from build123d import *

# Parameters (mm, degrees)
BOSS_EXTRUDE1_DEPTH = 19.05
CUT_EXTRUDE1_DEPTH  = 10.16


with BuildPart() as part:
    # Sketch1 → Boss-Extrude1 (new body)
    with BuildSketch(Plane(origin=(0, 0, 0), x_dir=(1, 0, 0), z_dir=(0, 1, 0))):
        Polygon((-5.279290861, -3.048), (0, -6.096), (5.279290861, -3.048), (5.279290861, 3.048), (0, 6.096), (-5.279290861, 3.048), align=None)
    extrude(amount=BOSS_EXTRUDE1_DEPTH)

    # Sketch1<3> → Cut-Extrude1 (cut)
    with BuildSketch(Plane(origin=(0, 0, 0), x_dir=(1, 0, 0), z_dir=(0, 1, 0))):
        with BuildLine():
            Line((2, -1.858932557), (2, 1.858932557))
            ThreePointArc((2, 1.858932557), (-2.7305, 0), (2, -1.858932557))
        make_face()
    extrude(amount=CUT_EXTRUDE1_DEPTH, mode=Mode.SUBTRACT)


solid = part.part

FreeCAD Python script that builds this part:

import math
import FreeCAD as App
import Part
import Sketcher
from FreeCAD import Vector
Q = App.Units.Quantity


def add_polygon(sketch, points):
    """Adds a closed chain of lines whose ends are joined by coincident constraints."""
    first, n = sketch.GeometryCount, len(points)
    for a, b in zip(points, points[1:] + points[:1]):
        sketch.addGeometry(Part.LineSegment(App.Vector(*a, 0), App.Vector(*b, 0)), False)
    for i in range(n):
        sketch.addConstraint(Sketcher.Constraint("Coincident", first + i, 2, first + (i + 1) % n, 1))

doc = App.newDocument("Part")
body = doc.addObject("PartDesign::Body", "Body")

# Sketch on XZ plane
sketch1 = doc.addObject("Sketcher::SketchObject", "Sketch")
body.addObject(sketch1)
sketch1.AttachmentSupport = (doc.XZ_Plane, [""])
sketch1.MapMode = "FlatFace"
add_polygon(sketch1, [(-5.279291, 3.048), (0, 6.096), (5.279291, 3.048), (5.279291, -3.048), (0, -6.096), (-5.279291, -3.048)])  # lines 0-5
sketch1.addConstraint(Sketcher.Constraint("Vertical", 2))
sketch1.addConstraint(Sketcher.Constraint("Vertical", 5))
sketch1.addConstraint(Sketcher.Constraint("Symmetric", 0, 2, 3, 2, -1, 1))
sketch1.addConstraint(Sketcher.Constraint("Symmetric", 1, 2, 4, 2, -1, 1))
sketch1.addConstraint(Sketcher.Constraint("PointOnObject", 0, 2, -2))
sketch1.addConstraint(Sketcher.Constraint("Parallel", 0, 3))
sketch1.addConstraint(Sketcher.Constraint("Horizontal", 2, 2, 4, 2))
sketch1.addConstraint(Sketcher.Constraint("Angle", 0, Q("30 deg")))
sketch1.addConstraint(Sketcher.Constraint("DistanceY", 2, 2, 2, 1, Q("0.24 in")))
sketch1.addConstraint(Sketcher.Constraint("Distance", 0, Q("0.24 in")))
pad1 = doc.addObject("PartDesign::Pad", "Pad")
body.addObject(pad1)
pad1.Profile = sketch1
pad1.Length = Q("0.75 in")
pad1.Reversed = True

# Sketch on XZ plane
sketch2 = doc.addObject("Sketcher::SketchObject", "Sketch001")
body.addObject(sketch2)
sketch2.AttachmentSupport = (doc.XZ_Plane, [""])
sketch2.MapMode = "FlatFace"
sketch2.addGeometry(Part.LineSegment(Vector(2, 1.858933, 0), Vector(2, -1.858933, 0)), False)
sketch2.addGeometry(Part.ArcOfCircle(Part.Circle(Vector(0, 0, 0), Vector(0, 0, 1), 2.7305), math.radians(42.906423), math.radians(317.093577)), False)
sketch2.addConstraint(Sketcher.Constraint("Coincident", 0, 1, 1, 1))
sketch2.addConstraint(Sketcher.Constraint("Coincident", 1, 2, 0, 2))
sketch2.addConstraint(Sketcher.Constraint("Vertical", 0))
sketch2.addConstraint(Sketcher.Constraint("Coincident", 1, 3, -1, 1))
sketch2.addConstraint(Sketcher.Constraint("Radius", 1, Q("0.1075 in")))
sketch2.addConstraint(Sketcher.Constraint("DistanceX", -1, 1, 0, 1, Q("2 mm")))
pocket1 = doc.addObject("PartDesign::Pocket", "Pocket")
body.addObject(pocket1)
pocket1.Profile = sketch2
pocket1.Length = Q("0.4 in")

doc.recompute()
